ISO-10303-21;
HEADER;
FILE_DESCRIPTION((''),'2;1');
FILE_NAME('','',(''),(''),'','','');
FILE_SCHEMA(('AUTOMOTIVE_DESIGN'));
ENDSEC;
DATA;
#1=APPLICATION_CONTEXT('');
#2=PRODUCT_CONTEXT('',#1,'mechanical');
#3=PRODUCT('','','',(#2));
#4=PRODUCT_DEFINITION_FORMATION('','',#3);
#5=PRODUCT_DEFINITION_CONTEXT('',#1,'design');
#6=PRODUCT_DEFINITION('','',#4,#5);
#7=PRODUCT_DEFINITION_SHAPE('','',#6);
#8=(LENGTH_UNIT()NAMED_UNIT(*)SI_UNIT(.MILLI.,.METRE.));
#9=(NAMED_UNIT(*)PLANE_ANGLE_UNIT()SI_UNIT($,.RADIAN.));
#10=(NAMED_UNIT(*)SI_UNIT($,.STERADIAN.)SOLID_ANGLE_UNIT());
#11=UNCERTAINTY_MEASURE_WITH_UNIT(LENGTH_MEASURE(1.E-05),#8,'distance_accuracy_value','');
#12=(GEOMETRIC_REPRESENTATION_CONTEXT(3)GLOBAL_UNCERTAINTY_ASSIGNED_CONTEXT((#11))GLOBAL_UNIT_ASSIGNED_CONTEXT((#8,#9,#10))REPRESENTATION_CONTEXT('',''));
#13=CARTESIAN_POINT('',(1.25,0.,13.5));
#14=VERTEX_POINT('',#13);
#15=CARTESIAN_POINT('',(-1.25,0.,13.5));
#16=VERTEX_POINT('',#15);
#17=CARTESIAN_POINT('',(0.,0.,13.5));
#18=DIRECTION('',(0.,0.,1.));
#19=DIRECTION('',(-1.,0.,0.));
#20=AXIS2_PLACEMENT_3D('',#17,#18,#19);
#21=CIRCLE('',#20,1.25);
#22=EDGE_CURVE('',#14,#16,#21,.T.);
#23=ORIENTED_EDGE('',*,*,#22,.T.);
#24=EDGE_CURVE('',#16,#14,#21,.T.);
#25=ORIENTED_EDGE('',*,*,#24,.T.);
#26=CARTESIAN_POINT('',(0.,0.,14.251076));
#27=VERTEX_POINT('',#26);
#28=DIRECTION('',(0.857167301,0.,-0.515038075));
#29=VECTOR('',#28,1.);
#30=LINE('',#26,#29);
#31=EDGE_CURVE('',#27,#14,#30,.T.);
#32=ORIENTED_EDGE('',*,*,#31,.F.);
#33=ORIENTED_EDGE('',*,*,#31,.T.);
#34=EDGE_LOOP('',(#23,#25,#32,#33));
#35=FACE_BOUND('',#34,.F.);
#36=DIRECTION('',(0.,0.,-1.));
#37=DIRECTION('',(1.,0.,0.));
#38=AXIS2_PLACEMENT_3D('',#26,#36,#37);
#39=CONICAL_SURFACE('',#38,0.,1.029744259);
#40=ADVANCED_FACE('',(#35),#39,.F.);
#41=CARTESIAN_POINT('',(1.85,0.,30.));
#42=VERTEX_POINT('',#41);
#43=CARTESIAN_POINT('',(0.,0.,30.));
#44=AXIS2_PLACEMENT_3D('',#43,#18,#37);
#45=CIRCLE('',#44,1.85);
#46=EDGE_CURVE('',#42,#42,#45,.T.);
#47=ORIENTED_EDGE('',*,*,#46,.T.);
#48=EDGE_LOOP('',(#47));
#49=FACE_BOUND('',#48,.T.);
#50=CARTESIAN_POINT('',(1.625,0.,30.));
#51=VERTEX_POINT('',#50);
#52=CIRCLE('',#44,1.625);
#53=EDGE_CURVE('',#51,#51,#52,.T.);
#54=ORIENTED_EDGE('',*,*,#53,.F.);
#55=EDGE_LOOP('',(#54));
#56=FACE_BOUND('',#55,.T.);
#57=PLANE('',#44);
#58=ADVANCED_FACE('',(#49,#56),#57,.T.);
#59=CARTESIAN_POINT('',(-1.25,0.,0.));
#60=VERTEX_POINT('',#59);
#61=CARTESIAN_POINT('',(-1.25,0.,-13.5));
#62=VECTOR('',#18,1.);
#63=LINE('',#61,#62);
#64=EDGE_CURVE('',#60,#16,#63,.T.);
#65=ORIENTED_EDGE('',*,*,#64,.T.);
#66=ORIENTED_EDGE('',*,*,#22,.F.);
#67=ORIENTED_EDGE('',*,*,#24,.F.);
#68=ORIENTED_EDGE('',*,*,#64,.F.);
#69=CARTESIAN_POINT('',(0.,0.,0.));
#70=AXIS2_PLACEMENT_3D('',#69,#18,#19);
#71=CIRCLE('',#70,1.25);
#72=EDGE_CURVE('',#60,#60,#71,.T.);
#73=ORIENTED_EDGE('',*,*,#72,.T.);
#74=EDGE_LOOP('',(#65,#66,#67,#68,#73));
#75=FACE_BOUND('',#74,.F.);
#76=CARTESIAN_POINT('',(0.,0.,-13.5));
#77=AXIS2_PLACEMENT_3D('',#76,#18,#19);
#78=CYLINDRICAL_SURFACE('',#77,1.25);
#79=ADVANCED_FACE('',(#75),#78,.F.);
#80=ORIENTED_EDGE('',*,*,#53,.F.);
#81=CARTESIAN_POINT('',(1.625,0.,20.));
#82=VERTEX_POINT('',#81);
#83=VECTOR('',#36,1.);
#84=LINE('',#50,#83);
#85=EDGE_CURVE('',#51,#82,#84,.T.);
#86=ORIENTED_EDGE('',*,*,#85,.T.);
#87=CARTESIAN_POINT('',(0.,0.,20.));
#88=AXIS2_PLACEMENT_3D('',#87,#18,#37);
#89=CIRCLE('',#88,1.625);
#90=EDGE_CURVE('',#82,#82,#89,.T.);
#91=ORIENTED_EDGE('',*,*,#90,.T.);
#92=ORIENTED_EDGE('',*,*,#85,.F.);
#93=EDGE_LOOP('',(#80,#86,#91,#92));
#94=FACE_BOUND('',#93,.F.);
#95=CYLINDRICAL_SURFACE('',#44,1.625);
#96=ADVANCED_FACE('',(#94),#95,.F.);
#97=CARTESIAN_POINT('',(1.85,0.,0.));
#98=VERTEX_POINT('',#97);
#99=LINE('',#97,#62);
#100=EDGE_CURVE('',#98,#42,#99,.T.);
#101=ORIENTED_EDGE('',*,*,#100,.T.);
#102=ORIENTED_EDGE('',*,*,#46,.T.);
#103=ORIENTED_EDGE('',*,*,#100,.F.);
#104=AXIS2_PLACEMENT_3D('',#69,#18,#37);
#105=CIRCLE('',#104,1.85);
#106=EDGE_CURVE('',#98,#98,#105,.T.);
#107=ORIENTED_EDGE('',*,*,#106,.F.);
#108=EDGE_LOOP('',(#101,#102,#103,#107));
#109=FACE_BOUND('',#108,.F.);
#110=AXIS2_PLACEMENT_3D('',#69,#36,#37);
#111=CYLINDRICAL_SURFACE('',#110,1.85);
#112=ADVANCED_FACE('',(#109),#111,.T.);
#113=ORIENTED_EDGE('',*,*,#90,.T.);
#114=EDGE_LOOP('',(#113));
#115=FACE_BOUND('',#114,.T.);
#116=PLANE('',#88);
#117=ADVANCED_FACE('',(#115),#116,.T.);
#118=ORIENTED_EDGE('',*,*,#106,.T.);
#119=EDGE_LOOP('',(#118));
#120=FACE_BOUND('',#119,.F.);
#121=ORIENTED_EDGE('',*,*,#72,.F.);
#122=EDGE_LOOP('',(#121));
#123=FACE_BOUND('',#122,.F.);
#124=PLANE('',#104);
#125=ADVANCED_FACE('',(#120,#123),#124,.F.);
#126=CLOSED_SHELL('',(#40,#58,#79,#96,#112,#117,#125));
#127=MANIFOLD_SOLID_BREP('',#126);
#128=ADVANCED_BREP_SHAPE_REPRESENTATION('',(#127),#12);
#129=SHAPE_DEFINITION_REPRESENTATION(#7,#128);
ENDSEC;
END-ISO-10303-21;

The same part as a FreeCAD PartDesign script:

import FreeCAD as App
import Part
import Sketcher

V = App.Vector
Q = App.Units.Quantity

doc = App.newDocument("Part")
body = doc.addObject("PartDesign::Body", "Body")

sketch1 = body.newObject("Sketcher::SketchObject", "Sketch")
sketch1.AttachmentSupport = (doc.getObject("XY_Plane"), [""])
sketch1.MapMode = "FlatFace"
sketch1.addGeometry(Part.Circle(V(0, 0, 0), V(0, 0, 1), 1.9), False)
sketch1.addConstraint(Sketcher.Constraint("Coincident", 0, 3, -1, 1))
sketch1.addConstraint(Sketcher.Constraint("Diameter", 0, Q("3.7 mm")))
pad1 = body.newObject("PartDesign::Pad", "Pad")
pad1.Profile = sketch1
pad1.Length = 30

sketch2 = body.newObject("Sketcher::SketchObject", "Sketch001")
sketch2.AttachmentSupport = (doc.getObject("XY_Plane"), [""])
sketch2.MapMode = "FlatFace"
sketch2.AttachmentOffset = App.Placement(V(0, 0, 30), App.Rotation())
sketch2.addGeometry(Part.Circle(V(0, 0, 0), V(0, 0, 1), 1.6), False)
sketch2.addConstraint(Sketcher.Constraint("Coincident", 0, 3, -1, 1))
sketch2.addConstraint(Sketcher.Constraint("Diameter", 0, Q("3.25 mm")))
pocket1 = body.newObject("PartDesign::Pocket", "Pocket")
pocket1.Profile = sketch2
pocket1.Length = 10

sketch3 = body.newObject("Sketcher::SketchObject", "Sketch002")
sketch3.AttachmentSupport = (doc.getObject("XY_Plane"), [""])
sketch3.MapMode = "FlatFace"
sketch3.addGeometry(Part.Circle(V(0, 0, 0), V(0, 0, 1), 1.2), False)
sketch3.addConstraint(Sketcher.Constraint("Coincident", 0, 3, -1, 1))
sketch3.addConstraint(Sketcher.Constraint("Diameter", 0, Q("2.5 mm")))
doc.recompute()
hole = body.newObject("PartDesign::Hole", "Hole")
hole.Profile = sketch3
hole.ThreadType = "None"
hole.Diameter = 2.5
hole.DepthType = "Dimension"
hole.Depth = 13.5
hole.DrillPoint = "Angled"
hole.DrillPointAngle = 118
hole.Reversed = True

doc.recompute()
